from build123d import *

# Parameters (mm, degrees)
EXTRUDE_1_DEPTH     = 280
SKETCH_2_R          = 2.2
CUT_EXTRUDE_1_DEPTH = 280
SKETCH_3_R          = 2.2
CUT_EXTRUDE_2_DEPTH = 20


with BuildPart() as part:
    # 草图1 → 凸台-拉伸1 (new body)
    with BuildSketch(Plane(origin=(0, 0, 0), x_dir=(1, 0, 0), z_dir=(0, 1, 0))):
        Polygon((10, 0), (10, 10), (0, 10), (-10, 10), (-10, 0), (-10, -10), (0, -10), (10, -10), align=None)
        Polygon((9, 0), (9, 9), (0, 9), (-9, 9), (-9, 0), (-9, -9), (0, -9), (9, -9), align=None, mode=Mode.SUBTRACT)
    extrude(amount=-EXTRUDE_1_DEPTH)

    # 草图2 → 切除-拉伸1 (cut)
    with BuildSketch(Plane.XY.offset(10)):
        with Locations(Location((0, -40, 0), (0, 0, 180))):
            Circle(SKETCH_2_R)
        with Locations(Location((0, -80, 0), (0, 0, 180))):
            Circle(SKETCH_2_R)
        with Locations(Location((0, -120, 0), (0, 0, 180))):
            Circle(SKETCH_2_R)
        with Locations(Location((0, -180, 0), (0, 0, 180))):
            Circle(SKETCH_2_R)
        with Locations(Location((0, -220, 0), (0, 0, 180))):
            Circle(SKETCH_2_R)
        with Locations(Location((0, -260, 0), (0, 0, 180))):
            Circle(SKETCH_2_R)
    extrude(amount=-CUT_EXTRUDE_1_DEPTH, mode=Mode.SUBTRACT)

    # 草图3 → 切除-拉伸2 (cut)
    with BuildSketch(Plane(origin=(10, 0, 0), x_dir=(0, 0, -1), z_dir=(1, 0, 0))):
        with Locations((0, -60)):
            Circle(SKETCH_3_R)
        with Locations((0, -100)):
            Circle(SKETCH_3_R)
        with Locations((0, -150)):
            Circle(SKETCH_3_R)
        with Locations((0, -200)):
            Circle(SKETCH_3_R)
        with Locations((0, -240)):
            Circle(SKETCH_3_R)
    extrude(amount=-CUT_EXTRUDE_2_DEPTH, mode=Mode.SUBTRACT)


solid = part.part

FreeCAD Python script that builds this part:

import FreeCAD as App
import Part
import Sketcher

V = App.Vector
Q = App.Units.Quantity


def add_polygon(sketch, points):
    """Adds a closed chain of lines whose ends are joined by coincident constraints."""
    first, n = sketch.GeometryCount, len(points)
    for a, b in zip(points, points[1:] + points[:1]):
        sketch.addGeometry(Part.LineSegment(App.Vector(*a, 0), App.Vector(*b, 0)), False)
    for i in range(n):
        sketch.addConstraint(Sketcher.Constraint("Coincident", first + i, 2, first + (i + 1) % n, 1))

doc = App.newDocument("Part")
body = doc.addObject("PartDesign::Body", "Body")

sketch1 = body.newObject("Sketcher::SketchObject", "Sketch")
sketch1.AttachmentSupport = (doc.getObject("XZ_Plane"), [""])
sketch1.MapMode = "FlatFace"
add_polygon(sketch1, [(10, -10), (-10, -10), (-10, 10), (10, 10)])
add_polygon(sketch1, [(9, -9), (9, 9), (-9, 9), (-9, -9)])
sketch1.addConstraint(Sketcher.Constraint("Horizontal", 0))
sketch1.addConstraint(Sketcher.Constraint("Vertical", 1))
sketch1.addConstraint(Sketcher.Constraint("Horizontal", 2))
sketch1.addConstraint(Sketcher.Constraint("Vertical", 3))
sketch1.addConstraint(Sketcher.Constraint("Vertical", 4))
sketch1.addConstraint(Sketcher.Constraint("Horizontal", 5))
sketch1.addConstraint(Sketcher.Constraint("Vertical", 6))
sketch1.addConstraint(Sketcher.Constraint("Horizontal", 7))
sketch1.addConstraint(Sketcher.Constraint("Symmetric", 0, 2, 2, 2, -1, 1))
sketch1.addConstraint(Sketcher.Constraint("Symmetric", 4, 2, 6, 2, -1, 1))
sketch1.addConstraint(Sketcher.Constraint("Equal", 2, 1))
sketch1.addConstraint(Sketcher.Constraint("Equal", 7, 4))
sketch1.addConstraint(Sketcher.Constraint("DistanceX", 0, 2, 0, 1, Q("20 mm")))
sketch1.addConstraint(Sketcher.Constraint("DistanceX", 5, 2, 5, 1, Q("18 mm")))
pad1 = body.newObject("PartDesign::Pad", "Pad")
pad1.Profile = sketch1
pad1.Length = 280

sketch2 = body.newObject("Sketcher::SketchObject", "Sketch001")
sketch2.AttachmentSupport = (doc.getObject("XY_Plane"), [""])
sketch2.MapMode = "FlatFace"
sketch2.AttachmentOffset = App.Placement(V(0, 0, 10), App.Rotation())
sketch2.addGeometry(Part.Circle(V(0, -40, 0), V(0, 0, 1), 2.2), False)
sketch2.addGeometry(Part.Circle(V(0, -80, 0), V(0, 0, 1), 2.2), False)
sketch2.addGeometry(Part.Circle(V(0, -120, 0), V(0, 0, 1), 2.2), False)
sketch2.addGeometry(Part.Circle(V(0, -180, 0), V(0, 0, 1), 2.2), False)
sketch2.addGeometry(Part.Circle(V(0, -220, 0), V(0, 0, 1), 2.2), False)
sketch2.addGeometry(Part.Circle(V(0, -260, 0), V(0, 0, 1), 2.2), False)
sketch2.addConstraint(Sketcher.Constraint("Equal", 0, 1))
sketch2.addConstraint(Sketcher.Constraint("Equal", 1, 2))
sketch2.addConstraint(Sketcher.Constraint("Equal", 2, 3))
sketch2.addConstraint(Sketcher.Constraint("Equal", 3, 4))
sketch2.addConstraint(Sketcher.Constraint("Equal", 4, 5))
sketch2.addConstraint(Sketcher.Constraint("PointOnObject", 0, 3, -2))
sketch2.addConstraint(Sketcher.Constraint("PointOnObject", 1, 3, -2))
sketch2.addConstraint(Sketcher.Constraint("PointOnObject", 2, 3, -2))
sketch2.addConstraint(Sketcher.Constraint("PointOnObject", 3, 3, -2))
sketch2.addConstraint(Sketcher.Constraint("PointOnObject", 4, 3, -2))
sketch2.addConstraint(Sketcher.Constraint("PointOnObject", 5, 3, -2))
sketch2.addConstraint(Sketcher.Constraint("Diameter", 0, Q("4.4 mm")))
sketch2.addConstraint(Sketcher.Constraint("DistanceY", 0, 3, -1, 1, Q("40 mm")))
sketch2.addConstraint(Sketcher.Constraint("DistanceY", 1, 3, -1, 1, Q("80 mm")))
sketch2.addConstraint(Sketcher.Constraint("DistanceY", 2, 3, -1, 1, Q("120 mm")))
sketch2.addConstraint(Sketcher.Constraint("DistanceY", 3, 3, -1, 1, Q("180 mm")))
sketch2.addConstraint(Sketcher.Constraint("DistanceY", 4, 3, -1, 1, Q("220 mm")))
sketch2.addConstraint(Sketcher.Constraint("DistanceY", 5, 3, -1, 1, Q("260 mm")))
pocket1 = body.newObject("PartDesign::Pocket", "Pocket")
pocket1.Profile = sketch2
pocket1.Length = 280

sketch3 = body.newObject("Sketcher::SketchObject", "Sketch002")
sketch3.AttachmentSupport = (doc.getObject("YZ_Plane"), [""])
sketch3.MapMode = "FlatFace"
sketch3.AttachmentOffset = App.Placement(V(0, 0, 10), App.Rotation())
sketch3.addGeometry(Part.Circle(V(-60, 0, 0), V(0, 0, 1), 2.2), False)
sketch3.addGeometry(Part.Circle(V(-100, 0, 0), V(0, 0, 1), 2.2), False)
sketch3.addGeometry(Part.Circle(V(-150, 0, 0), V(0, 0, 1), 2.2), False)
sketch3.addGeometry(Part.Circle(V(-200, 0, 0), V(0, 0, 1), 2.2), False)
sketch3.addGeometry(Part.Circle(V(-240, 0, 0), V(0, 0, 1), 2.2), False)
sketch3.addConstraint(Sketcher.Constraint("Equal", 0, 1))
sketch3.addConstraint(Sketcher.Constraint("Equal", 1, 2))
sketch3.addConstraint(Sketcher.Constraint("Equal", 2, 3))
sketch3.addConstraint(Sketcher.Constraint("Equal", 3, 4))
sketch3.addConstraint(Sketcher.Constraint("PointOnObject", 0, 3, -1))
sketch3.addConstraint(Sketcher.Constraint("PointOnObject", 1, 3, -1))
sketch3.addConstraint(Sketcher.Constraint("PointOnObject", 2, 3, -1))
sketch3.addConstraint(Sketcher.Constraint("PointOnObject", 3, 3, -1))
sketch3.addConstraint(Sketcher.Constraint("PointOnObject", 4, 3, -1))
sketch3.addConstraint(Sketcher.Constraint("Diameter", 0, Q("4.4 mm")))
sketch3.addConstraint(Sketcher.Constraint("DistanceX", 0, 3, -1, 1, Q("60 mm")))
sketch3.addConstraint(Sketcher.Constraint("DistanceX", 1, 3, -1, 1, Q("100 mm")))
sketch3.addConstraint(Sketcher.Constraint("DistanceX", 2, 3, -1, 1, Q("150 mm")))
sketch3.addConstraint(Sketcher.Constraint("DistanceX", 3, 3, -1, 1, Q("200 mm")))
sketch3.addConstraint(Sketcher.Constraint("DistanceX", 4, 3, -1, 1, Q("240 mm")))
pocket2 = body.newObject("PartDesign::Pocket", "Pocket001")
pocket2.Profile = sketch3
pocket2.Length = 20

doc.recompute()
